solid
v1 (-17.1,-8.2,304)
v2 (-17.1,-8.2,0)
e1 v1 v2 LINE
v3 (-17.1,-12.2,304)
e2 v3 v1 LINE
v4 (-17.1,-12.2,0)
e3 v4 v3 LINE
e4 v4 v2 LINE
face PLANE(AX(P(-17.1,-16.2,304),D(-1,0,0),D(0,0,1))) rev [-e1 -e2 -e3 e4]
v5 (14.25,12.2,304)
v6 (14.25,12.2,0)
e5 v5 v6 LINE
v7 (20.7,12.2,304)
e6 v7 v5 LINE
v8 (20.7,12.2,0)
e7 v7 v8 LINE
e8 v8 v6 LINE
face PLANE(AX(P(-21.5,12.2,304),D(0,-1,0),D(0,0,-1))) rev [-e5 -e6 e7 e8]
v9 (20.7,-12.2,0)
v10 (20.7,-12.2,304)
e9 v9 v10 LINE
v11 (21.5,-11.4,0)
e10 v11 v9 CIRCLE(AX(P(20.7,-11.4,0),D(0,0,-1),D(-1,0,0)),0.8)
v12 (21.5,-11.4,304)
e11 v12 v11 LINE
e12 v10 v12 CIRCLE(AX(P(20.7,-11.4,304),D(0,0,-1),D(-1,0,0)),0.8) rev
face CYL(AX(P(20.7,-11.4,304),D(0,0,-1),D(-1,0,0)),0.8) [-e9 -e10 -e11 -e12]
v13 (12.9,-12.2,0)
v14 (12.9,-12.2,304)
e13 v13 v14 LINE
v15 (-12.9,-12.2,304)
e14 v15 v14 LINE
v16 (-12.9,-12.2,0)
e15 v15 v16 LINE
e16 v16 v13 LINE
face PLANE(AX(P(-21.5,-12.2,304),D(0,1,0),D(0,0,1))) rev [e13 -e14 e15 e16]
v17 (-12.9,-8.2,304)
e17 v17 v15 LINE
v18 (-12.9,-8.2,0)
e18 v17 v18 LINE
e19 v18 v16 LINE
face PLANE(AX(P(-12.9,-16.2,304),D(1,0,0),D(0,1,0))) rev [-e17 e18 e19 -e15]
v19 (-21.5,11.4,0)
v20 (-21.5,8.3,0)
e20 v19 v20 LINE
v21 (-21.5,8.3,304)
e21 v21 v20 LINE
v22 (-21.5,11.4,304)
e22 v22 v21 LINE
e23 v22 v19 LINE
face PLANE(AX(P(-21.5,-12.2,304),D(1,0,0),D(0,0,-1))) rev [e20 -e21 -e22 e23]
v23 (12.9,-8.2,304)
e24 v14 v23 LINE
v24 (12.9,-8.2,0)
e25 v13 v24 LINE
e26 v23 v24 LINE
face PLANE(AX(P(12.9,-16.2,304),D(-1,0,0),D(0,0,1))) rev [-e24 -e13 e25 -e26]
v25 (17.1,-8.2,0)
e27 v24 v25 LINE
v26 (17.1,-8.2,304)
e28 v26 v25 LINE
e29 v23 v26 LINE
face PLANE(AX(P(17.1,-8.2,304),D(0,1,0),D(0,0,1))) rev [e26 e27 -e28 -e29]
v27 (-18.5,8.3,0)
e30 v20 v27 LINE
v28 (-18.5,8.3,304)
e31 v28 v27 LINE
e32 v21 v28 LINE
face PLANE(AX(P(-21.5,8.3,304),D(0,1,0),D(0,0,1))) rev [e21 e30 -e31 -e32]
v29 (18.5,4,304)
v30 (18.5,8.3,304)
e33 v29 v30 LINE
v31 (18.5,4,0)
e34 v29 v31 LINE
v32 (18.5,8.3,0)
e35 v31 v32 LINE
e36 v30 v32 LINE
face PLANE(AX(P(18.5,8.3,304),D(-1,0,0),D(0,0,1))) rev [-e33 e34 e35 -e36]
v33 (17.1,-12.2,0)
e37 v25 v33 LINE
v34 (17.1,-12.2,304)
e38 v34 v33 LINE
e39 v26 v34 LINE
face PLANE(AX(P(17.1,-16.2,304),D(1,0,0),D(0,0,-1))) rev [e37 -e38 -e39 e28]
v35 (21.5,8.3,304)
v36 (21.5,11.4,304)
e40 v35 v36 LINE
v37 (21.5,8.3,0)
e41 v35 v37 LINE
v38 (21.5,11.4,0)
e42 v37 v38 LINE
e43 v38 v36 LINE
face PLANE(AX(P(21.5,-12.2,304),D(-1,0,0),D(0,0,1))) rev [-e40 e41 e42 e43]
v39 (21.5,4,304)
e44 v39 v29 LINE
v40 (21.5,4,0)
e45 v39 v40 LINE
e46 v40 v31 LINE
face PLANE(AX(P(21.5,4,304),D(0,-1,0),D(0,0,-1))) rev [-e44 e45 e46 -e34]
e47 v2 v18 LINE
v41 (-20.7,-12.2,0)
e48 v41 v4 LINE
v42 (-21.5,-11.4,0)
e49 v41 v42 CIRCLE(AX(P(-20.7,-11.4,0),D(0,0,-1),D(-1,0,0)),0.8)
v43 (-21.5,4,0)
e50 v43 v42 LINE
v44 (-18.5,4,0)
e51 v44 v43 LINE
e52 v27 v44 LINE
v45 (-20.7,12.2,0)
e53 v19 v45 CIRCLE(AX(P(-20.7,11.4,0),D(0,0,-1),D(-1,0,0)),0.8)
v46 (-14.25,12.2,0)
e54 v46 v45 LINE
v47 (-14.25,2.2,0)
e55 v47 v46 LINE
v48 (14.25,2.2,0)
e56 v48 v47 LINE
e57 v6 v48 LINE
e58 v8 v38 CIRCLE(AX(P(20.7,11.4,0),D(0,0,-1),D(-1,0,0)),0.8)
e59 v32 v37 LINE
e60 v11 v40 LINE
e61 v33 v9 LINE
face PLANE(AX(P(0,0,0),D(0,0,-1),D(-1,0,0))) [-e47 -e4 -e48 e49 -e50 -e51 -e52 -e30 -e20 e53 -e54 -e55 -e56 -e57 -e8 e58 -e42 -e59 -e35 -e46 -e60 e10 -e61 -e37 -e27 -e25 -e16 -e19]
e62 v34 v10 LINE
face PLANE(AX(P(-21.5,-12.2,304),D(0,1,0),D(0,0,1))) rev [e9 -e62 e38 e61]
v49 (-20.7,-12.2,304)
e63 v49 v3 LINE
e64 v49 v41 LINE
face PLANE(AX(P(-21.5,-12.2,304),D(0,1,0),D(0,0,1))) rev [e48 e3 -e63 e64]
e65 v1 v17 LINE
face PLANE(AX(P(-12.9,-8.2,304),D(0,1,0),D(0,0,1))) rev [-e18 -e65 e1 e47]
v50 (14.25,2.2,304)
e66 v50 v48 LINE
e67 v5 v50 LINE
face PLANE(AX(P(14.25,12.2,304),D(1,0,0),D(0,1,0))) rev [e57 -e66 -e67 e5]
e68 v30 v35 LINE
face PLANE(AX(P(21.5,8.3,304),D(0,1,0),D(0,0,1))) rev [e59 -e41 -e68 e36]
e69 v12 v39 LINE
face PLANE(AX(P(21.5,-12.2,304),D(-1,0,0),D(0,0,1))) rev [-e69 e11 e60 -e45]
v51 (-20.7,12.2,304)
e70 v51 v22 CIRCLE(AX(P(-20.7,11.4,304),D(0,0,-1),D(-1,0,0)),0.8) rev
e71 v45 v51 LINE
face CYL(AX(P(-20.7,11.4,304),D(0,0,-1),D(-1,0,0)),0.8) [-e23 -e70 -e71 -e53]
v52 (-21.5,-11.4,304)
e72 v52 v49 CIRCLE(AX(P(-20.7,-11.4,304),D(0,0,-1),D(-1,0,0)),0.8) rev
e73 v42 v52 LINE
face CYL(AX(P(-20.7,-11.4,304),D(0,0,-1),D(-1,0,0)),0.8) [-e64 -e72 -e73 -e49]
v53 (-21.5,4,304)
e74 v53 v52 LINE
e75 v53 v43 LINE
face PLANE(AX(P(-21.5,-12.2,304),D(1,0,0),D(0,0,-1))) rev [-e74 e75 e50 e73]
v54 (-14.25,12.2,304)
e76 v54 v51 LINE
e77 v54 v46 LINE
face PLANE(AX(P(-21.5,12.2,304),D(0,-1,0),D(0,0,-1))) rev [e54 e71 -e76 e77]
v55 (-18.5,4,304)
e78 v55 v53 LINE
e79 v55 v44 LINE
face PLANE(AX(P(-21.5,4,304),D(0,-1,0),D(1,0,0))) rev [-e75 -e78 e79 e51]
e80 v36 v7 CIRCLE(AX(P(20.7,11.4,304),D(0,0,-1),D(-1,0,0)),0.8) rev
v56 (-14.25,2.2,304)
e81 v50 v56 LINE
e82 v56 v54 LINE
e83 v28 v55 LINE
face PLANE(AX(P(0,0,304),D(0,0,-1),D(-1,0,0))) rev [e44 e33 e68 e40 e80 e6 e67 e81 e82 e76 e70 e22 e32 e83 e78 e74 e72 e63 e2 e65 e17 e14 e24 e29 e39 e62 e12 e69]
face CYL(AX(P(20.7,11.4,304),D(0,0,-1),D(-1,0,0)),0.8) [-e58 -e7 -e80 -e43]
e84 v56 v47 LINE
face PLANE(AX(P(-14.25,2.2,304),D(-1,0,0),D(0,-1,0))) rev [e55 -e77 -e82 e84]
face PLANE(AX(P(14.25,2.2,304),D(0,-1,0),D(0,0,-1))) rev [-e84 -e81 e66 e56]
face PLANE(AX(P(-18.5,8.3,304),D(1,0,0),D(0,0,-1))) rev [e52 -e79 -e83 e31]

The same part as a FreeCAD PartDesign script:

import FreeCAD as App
import Part
import Sketcher
from FreeCAD import Vector


def edges_at(feature, points):
    """Names of the edges that pass closest to the given points."""
    edges = feature.Shape.Edges
    near = lambda p: min(range(len(edges)), key=lambda i: edges[i].distToShape(Part.Vertex(*p))[0])
    return sorted({f"Edge{near(p) + 1}" for p in points})


def add_polygon(sketch, points):
    """Adds a closed chain of lines whose ends are joined by coincident constraints."""
    first, n = sketch.GeometryCount, len(points)
    for a, b in zip(points, points[1:] + points[:1]):
        sketch.addGeometry(Part.LineSegment(App.Vector(*a, 0), App.Vector(*b, 0)), False)
    for i in range(n):
        sketch.addConstraint(Sketcher.Constraint("Coincident", first + i, 2, first + (i + 1) % n, 1))

doc = App.newDocument("Part")
body = doc.addObject("PartDesign::Body", "Body")

sketch1 = body.newObject("Sketcher::SketchObject", "Sketch")
sketch1.AttachmentSupport = (doc.getObject("XY_Plane"), [""])
sketch1.MapMode = "FlatFace"
add_polygon(sketch1, [(-22, 12), (-22, -12), (22, -12), (22, 12)])
sketch1.addConstraint([
    Sketcher.Constraint("Vertical", 0),
    Sketcher.Constraint("Horizontal", 1),
    Sketcher.Constraint("Vertical", 2),
    Sketcher.Constraint("Horizontal", 3),
    Sketcher.Constraint("Symmetric", 0, 2, 2, 2, -1, 1),
    Sketcher.Constraint("DistanceX", 1, 1, 1, 2, 43.0),
    Sketcher.Constraint("DistanceY", 0, 2, 0, 1, 24.4),
])
pad1 = body.newObject("PartDesign::Pad", "Pad")
pad1.Profile = sketch1
pad1.Length = 304
doc.recompute()

fillet = body.newObject("PartDesign::Fillet", "Fillet")
fillet.Base = (pad1, edges_at(pad1, [
    (21.5, -12.2, 152),
    (-21.5, -12.2, 152),
    (-21.5, 12.2, 152),
    (21.5, 12.2, 152),
]))
fillet.Radius = 0.8

sketch2 = body.newObject("Sketcher::SketchObject", "Sketch001")
sketch2.AttachmentSupport = (doc.getObject("XY_Plane"), [""])
sketch2.MapMode = "FlatFace"
add_polygon(sketch2, [(21.5, 8.3), (21.5, 4), (18.5, 4), (18.5, 8.3)])
add_polygon(sketch2, [(-18.5, 8.3), (-18.5, 4), (-21.5, 4), (-21.5, 8.3)])
sketch2.addConstraint([
    Sketcher.Constraint("Vertical", 0),
    Sketcher.Constraint("Horizontal", 1),
    Sketcher.Constraint("Vertical", 2),
    Sketcher.Constraint("Horizontal", 3),
    Sketcher.Constraint("Vertical", 4),
    Sketcher.Constraint("Horizontal", 5),
    Sketcher.Constraint("Vertical", 6),
    Sketcher.Constraint("Horizontal", 7),
    Sketcher.Constraint("Symmetric", 1, 2, 4, 2, -2),
    Sketcher.Constraint("Symmetric", 3, 2, 6, 2, -2),
    Sketcher.Constraint("DistanceX", 1, 2, 1, 1, 3.0),
    Sketcher.Constraint("DistanceY", 0, 2, 0, 1, 4.3),
    Sketcher.Constraint("DistanceY", -1, 1, 0, 2, 4.0),
    Sketcher.Constraint("DistanceX", 4, 2, 1, 2, 37.0),
])
pocket1 = body.newObject("PartDesign::Pocket", "Pocket")
pocket1.Profile = sketch2
pocket1.Type = "ThroughAll"
pocket1.Reversed = True

sketch3 = body.newObject("Sketcher::SketchObject", "Sketch002")
sketch3.AttachmentSupport = (doc.getObject("XY_Plane"), [""])
sketch3.MapMode = "FlatFace"
add_polygon(sketch3, [(14, 12), (14, 2), (-14, 2), (-14, 12)])
sketch3.addConstraint([
    Sketcher.Constraint("Vertical", 0),
    Sketcher.Constraint("Horizontal", 1),
    Sketcher.Constraint("Vertical", 2),
    Sketcher.Constraint("Horizontal", 3),
    Sketcher.Constraint("DistanceY", 0, 2, 0, 1, 10.0),
    Sketcher.Constraint("DistanceX", 1, 2, 1, 1, 28.5),
    Sketcher.Constraint("DistanceY", -1, 1, 0, 2, 2.2),
    Sketcher.Constraint("DistanceX", -1, 1, 0, 2, 14.25),
])
pocket2 = body.newObject("PartDesign::Pocket", "Pocket001")
pocket2.Profile = sketch3
pocket2.Type = "ThroughAll"
pocket2.Reversed = True

sketch4 = body.newObject("Sketcher::SketchObject", "Sketch003")
sketch4.AttachmentSupport = (doc.getObject("XY_Plane"), [""])
sketch4.MapMode = "FlatFace"
add_polygon(sketch4, [(17.1, -8.2), (17.1, -16.2), (12.9, -16.2), (12.9, -8.2)])
add_polygon(sketch4, [(-12.9, -8.2), (-12.9, -16.2), (-17.1, -16.2), (-17.1, -8.2)])
sketch4.addConstraint([
    Sketcher.Constraint("Vertical", 0),
    Sketcher.Constraint("Horizontal", 1),
    Sketcher.Constraint("Vertical", 2),
    Sketcher.Constraint("Horizontal", 3),
    Sketcher.Constraint("Vertical", 4),
    Sketcher.Constraint("Horizontal", 5),
    Sketcher.Constraint("Vertical", 6),
    Sketcher.Constraint("Horizontal", 7),
    Sketcher.Constraint("Symmetric", 1, 2, 4, 2, -2),
    Sketcher.Constraint("Symmetric", 3, 2, 6, 2, -2),
    Sketcher.Constraint("DistanceY", 0, 2, 0, 1, 8.0),
    Sketcher.Constraint("DistanceX", 1, 2, 1, 1, 4.2),
    Sketcher.Constraint("DistanceX", 4, 2, 0, 2, 30.0),
    Sketcher.Constraint("DistanceY", 0, 2, -1, 1, 16.2),
])
pocket3 = body.newObject("PartDesign::Pocket", "Pocket002")
pocket3.Profile = sketch4
pocket3.Type = "ThroughAll"
pocket3.Reversed = True

doc.recompute()
